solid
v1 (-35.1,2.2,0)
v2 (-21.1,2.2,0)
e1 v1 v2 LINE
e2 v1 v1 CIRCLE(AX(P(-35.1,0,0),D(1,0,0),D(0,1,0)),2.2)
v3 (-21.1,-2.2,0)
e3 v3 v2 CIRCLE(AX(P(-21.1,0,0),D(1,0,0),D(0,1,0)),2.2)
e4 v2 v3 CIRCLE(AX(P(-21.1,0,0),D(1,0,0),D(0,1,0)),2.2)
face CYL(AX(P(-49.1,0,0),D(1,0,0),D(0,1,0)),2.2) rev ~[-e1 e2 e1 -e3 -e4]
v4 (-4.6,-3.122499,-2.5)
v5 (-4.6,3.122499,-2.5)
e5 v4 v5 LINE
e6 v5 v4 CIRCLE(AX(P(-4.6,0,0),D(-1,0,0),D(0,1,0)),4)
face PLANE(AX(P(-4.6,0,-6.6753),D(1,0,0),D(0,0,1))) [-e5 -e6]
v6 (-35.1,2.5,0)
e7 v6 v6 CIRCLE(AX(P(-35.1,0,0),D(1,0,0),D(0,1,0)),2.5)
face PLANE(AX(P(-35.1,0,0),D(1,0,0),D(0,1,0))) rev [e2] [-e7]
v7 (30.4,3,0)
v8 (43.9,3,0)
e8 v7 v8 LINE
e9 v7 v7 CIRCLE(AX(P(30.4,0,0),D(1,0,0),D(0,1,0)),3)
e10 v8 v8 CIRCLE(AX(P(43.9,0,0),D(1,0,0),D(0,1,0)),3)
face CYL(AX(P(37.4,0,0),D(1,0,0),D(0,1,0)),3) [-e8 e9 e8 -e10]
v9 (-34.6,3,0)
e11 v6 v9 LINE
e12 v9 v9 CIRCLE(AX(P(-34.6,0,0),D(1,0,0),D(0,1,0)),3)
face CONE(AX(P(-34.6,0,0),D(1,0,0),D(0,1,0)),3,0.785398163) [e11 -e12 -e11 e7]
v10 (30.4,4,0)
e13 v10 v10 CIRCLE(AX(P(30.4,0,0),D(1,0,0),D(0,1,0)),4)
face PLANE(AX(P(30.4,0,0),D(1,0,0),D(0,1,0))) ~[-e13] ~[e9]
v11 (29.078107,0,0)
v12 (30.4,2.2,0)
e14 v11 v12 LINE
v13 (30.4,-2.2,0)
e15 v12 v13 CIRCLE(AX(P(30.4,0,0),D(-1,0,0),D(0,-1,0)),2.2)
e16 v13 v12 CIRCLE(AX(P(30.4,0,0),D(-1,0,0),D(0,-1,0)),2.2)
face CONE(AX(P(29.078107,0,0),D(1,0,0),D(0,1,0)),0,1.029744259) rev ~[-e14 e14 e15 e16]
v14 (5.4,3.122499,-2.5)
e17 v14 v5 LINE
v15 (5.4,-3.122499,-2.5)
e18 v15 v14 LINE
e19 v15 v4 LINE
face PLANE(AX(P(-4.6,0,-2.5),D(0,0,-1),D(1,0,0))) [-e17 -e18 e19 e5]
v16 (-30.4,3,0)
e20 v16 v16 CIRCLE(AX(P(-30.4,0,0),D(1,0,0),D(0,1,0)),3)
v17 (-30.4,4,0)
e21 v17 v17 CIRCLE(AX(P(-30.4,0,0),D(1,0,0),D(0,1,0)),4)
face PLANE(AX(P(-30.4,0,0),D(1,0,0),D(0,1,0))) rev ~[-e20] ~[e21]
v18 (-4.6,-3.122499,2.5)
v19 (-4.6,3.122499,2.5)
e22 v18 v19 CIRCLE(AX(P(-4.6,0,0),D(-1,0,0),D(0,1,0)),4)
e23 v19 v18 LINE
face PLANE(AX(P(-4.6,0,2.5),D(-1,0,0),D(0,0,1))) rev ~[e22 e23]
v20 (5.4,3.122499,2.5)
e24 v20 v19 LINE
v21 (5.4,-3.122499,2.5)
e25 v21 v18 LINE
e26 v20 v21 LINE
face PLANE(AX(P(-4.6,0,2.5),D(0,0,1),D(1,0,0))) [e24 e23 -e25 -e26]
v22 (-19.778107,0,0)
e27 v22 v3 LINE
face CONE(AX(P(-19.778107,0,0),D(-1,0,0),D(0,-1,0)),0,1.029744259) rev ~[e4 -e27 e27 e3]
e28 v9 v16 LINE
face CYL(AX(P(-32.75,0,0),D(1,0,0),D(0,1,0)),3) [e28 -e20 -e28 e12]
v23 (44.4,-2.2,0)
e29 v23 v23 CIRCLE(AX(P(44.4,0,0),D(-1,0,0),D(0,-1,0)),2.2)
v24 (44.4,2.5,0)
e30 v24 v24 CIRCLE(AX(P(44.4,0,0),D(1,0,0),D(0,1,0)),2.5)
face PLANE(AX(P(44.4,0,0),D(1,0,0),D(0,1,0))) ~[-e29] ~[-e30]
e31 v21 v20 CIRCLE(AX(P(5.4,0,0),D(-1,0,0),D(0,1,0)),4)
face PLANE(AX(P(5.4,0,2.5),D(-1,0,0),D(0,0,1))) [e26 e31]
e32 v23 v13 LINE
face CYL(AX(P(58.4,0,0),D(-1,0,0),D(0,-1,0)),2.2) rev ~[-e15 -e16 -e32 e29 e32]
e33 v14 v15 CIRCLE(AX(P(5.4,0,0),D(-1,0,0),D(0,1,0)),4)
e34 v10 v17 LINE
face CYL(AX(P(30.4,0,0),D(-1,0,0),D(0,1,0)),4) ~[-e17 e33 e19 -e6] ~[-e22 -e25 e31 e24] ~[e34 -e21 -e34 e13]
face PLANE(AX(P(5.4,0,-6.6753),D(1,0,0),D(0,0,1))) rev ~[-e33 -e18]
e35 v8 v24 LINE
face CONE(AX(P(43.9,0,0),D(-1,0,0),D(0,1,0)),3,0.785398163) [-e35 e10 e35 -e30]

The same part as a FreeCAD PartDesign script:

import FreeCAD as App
import Part
import Sketcher
Q = App.Units.Quantity


def edges_at(feature, points):
    """Names of the edges that pass closest to the given points."""
    edges = feature.Shape.Edges
    near = lambda p: min(range(len(edges)), key=lambda i: edges[i].distToShape(Part.Vertex(*p))[0])
    return sorted({f"Edge{near(p) + 1}" for p in points})

doc = App.newDocument("Part")
params = doc.addObject("Spreadsheet::Sheet", "Params")
for row, (alias, value) in enumerate([
    ("sketch1_width", "14 mm"),
    ("sketch1_height", "3 mm"),
    ("sketch1_height2", "1 mm"),
    ("sketch1_width2", "79.5 mm"),
    ("sketch1_width3", "60.8 mm"),
    ("revolution_angle", "360 deg"),
    ("sketch2_width", "10 mm"),
    ("pocket1_length", "25 mm"),
    ("sketch3_diameter", "4.4 mm"),
    ("hole_diameter", "4.4 mm"),
    ("hole_depth", "14 mm"),
    ("sketch4_diameter", "4.4 mm"),
    ("hole2_diameter", "4.4 mm"),
    ("hole2_depth", "14 mm"),
    ("chamfer_size", "0.5 mm"),
], start=1):
    params.set(f"A{row}", alias)
    params.set(f"B{row}", "=" + value)
    params.setAlias(f"B{row}", alias)

body = doc.addObject("PartDesign::Body", "Body")

# Sketch on XY plane
sketch1 = body.newObject("Sketcher::SketchObject", "Sketch")
sketch1.AttachmentSupport = (doc.getObject("XY_Plane"), [""])
sketch1.MapMode = "FlatFace"
sketch1.addGeometry(Part.LineSegment(App.Vector(-35.1, 3, 0), App.Vector(-35.1, 0, 0)), False)
sketch1.addGeometry(Part.LineSegment(App.Vector(-35.1, 0, 0), App.Vector(44.4, 0, 0)), False)
sketch1.addGeometry(Part.LineSegment(App.Vector(44.4, 0, 0), App.Vector(44.4, 3, 0)), False)
sketch1.addGeometry(Part.LineSegment(App.Vector(44.4, 3, 0), App.Vector(30.4, 3, 0)), False)
sketch1.addGeometry(Part.LineSegment(App.Vector(30.4, 3, 0), App.Vector(30.4, 4, 0)), False)
sketch1.addGeometry(Part.LineSegment(App.Vector(30.4, 4, 0), App.Vector(-30.4, 4, 0)), False)
sketch1.addGeometry(Part.LineSegment(App.Vector(-30.4, 4, 0), App.Vector(-30.4, 3, 0)), False)
sketch1.addGeometry(Part.LineSegment(App.Vector(-30.4, 3, 0), App.Vector(-35.1, 3, 0)), False)
sketch1.addConstraint(Sketcher.Constraint("Coincident", 0, 2, 1, 1))
sketch1.addConstraint(Sketcher.Constraint("Coincident", 1, 2, 2, 1))
sketch1.addConstraint(Sketcher.Constraint("Coincident", 2, 2, 3, 1))
sketch1.addConstraint(Sketcher.Constraint("Coincident", 3, 2, 4, 1))
sketch1.addConstraint(Sketcher.Constraint("Coincident", 4, 2, 5, 1))
sketch1.addConstraint(Sketcher.Constraint("Coincident", 5, 2, 6, 1))
sketch1.addConstraint(Sketcher.Constraint("Coincident", 6, 2, 7, 1))
sketch1.addConstraint(Sketcher.Constraint("Coincident", 7, 2, 0, 1))
sketch1.addConstraint(Sketcher.Constraint("Vertical", 0))
sketch1.addConstraint(Sketcher.Constraint("Horizontal", 1))
sketch1.addConstraint(Sketcher.Constraint("Vertical", 2))
sketch1.addConstraint(Sketcher.Constraint("Horizontal", 3))
sketch1.addConstraint(Sketcher.Constraint("Vertical", 4))
sketch1.addConstraint(Sketcher.Constraint("Horizontal", 5))
sketch1.addConstraint(Sketcher.Constraint("Vertical", 6))
sketch1.addConstraint(Sketcher.Constraint("Horizontal", 7))
sketch1.addConstraint(Sketcher.Constraint("Symmetric", 3, 2, 6, 2, -2))
sketch1.addConstraint(Sketcher.Constraint("PointOnObject", 0, 2, -1))
sketch1.addConstraint(Sketcher.Constraint("DistanceX", 3, 2, 3, 1, Q("14 mm")))
sketch1.addConstraint(Sketcher.Constraint("DistanceY", 0, 2, 0, 1, Q("3 mm")))
sketch1.addConstraint(Sketcher.Constraint("DistanceY", 4, 1, 4, 2, Q("1 mm")))
sketch1.addConstraint(Sketcher.Constraint("DistanceX", 1, 1, 1, 2, Q("79.5 mm")))
sketch1.addConstraint(Sketcher.Constraint("DistanceX", 5, 2, 5, 1, Q("60.8 mm")))
sketch1.setExpression("Constraints[18]", "Params.sketch1_width")
sketch1.setExpression("Constraints[19]", "Params.sketch1_height")
sketch1.setExpression("Constraints[20]", "Params.sketch1_height2")
sketch1.setExpression("Constraints[21]", "Params.sketch1_width2")
sketch1.setExpression("Constraints[22]", "Params.sketch1_width3")
revolution = body.newObject("PartDesign::Revolution", "Revolution")
revolution.Profile = sketch1
revolution.ReferenceAxis = (sketch1, ["H_Axis"])
revolution.setExpression("Angle", "Params.revolution_angle")

# Sketch on XZ plane
sketch2 = body.newObject("Sketcher::SketchObject", "Sketch001")
sketch2.AttachmentSupport = (doc.getObject("XZ_Plane"), [""])
sketch2.MapMode = "FlatFace"
sketch2.addGeometry(Part.LineSegment(App.Vector(-4.6, 6.6753, 0), App.Vector(-4.6, 2.5, 0)), False)
sketch2.addGeometry(Part.LineSegment(App.Vector(-4.6, 2.5, 0), App.Vector(5.4, 2.5, 0)), False)
sketch2.addGeometry(Part.LineSegment(App.Vector(5.4, 2.5, 0), App.Vector(5.4, 6.6753, 0)), False)
sketch2.addGeometry(Part.LineSegment(App.Vector(5.4, 6.6753, 0), App.Vector(-4.6, 6.6753, 0)), False)
sketch2.addGeometry(Part.LineSegment(App.Vector(-4.6, -2.5, 0), App.Vector(-4.6, -6.6753, 0)), False)
sketch2.addGeometry(Part.LineSegment(App.Vector(-4.6, -6.6753, 0), App.Vector(5.4, -6.6753, 0)), False)
sketch2.addGeometry(Part.LineSegment(App.Vector(5.4, -6.6753, 0), App.Vector(5.4, -2.5, 0)), False)
sketch2.addGeometry(Part.LineSegment(App.Vector(5.4, -2.5, 0), App.Vector(-4.6, -2.5, 0)), False)
sketch2.addConstraint(Sketcher.Constraint("Coincident", 0, 2, 1, 1))
sketch2.addConstraint(Sketcher.Constraint("Coincident", 1, 2, 2, 1))
sketch2.addConstraint(Sketcher.Constraint("Coincident", 2, 2, 3, 1))
sketch2.addConstraint(Sketcher.Constraint("Coincident", 3, 2, 0, 1))
sketch2.addConstraint(Sketcher.Constraint("Coincident", 4, 2, 5, 1))
sketch2.addConstraint(Sketcher.Constraint("Coincident", 5, 2, 6, 1))
sketch2.addConstraint(Sketcher.Constraint("Coincident", 6, 2, 7, 1))
sketch2.addConstraint(Sketcher.Constraint("Coincident", 7, 2, 4, 1))
sketch2.addConstraint(Sketcher.Constraint("Vertical", 0))
sketch2.addConstraint(Sketcher.Constraint("Horizontal", 1))
sketch2.addConstraint(Sketcher.Constraint("Vertical", 2))
sketch2.addConstraint(Sketcher.Constraint("Horizontal", 3))
sketch2.addConstraint(Sketcher.Constraint("Vertical", 4))
sketch2.addConstraint(Sketcher.Constraint("Horizontal", 5))
sketch2.addConstraint(Sketcher.Constraint("Vertical", 6))
sketch2.addConstraint(Sketcher.Constraint("Horizontal", 7))
sketch2.addConstraint(Sketcher.Constraint("Symmetric", 3, 2, 4, 2, -1))
sketch2.addConstraint(Sketcher.Constraint("Symmetric", 1, 2, 6, 2, -1))
sketch2.addConstraint(Sketcher.Constraint("DistanceX", 1, 1, 1, 2, Q("10 mm")))
sketch2.addConstraint(Sketcher.Constraint("DistanceY", 6, 2, 1, 2, Q("5 mm")))
sketch2.addConstraint(Sketcher.Constraint("DistanceX", 0, 2, -1, 1, Q("4.6 mm")))
sketch2.addConstraint(Sketcher.Constraint("DistanceY", 0, 2, 0, 1, Q("4.1753 mm")))
sketch2.setExpression("Constraints[18]", "Params.sketch2_width")
pocket1 = body.newObject("PartDesign::Pocket", "Pocket")
pocket1.Profile = sketch2
pocket1.setExpression("Length", "Params.pocket1_length")
pocket1.Midplane = True

# Sketch on YZ plane
sketch3 = body.newObject("Sketcher::SketchObject", "Sketch002")
sketch3.AttachmentSupport = (doc.getObject("YZ_Plane"), [""])
sketch3.MapMode = "FlatFace"
sketch3.AttachmentOffset = App.Placement(App.Vector(0, 0, 44.4), App.Rotation())
sketch3.addGeometry(Part.Circle(App.Vector(0, 0, 0), App.Vector(0, 0, 1), 2.2), False)
sketch3.addConstraint(Sketcher.Constraint("Coincident", 0, 3, -1, 1))
sketch3.addConstraint(Sketcher.Constraint("Diameter", 0, Q("4.4 mm")))
sketch3.setExpression("Constraints[1]", "Params.sketch3_diameter")
doc.recompute()
hole = body.newObject("PartDesign::Hole", "Hole")
hole.Profile = sketch3
hole.ThreadType = "None"
hole.setExpression("Diameter", "Params.hole_diameter")
hole.DepthType = "Dimension"
hole.setExpression("Depth", "Params.hole_depth")
hole.DrillPoint = "Angled"
hole.DrillPointAngle = 118

# Sketch on YZ plane
sketch4 = body.newObject("Sketcher::SketchObject", "Sketch003")
sketch4.AttachmentSupport = (doc.getObject("YZ_Plane"), [""])
sketch4.MapMode = "FlatFace"
sketch4.AttachmentOffset = App.Placement(App.Vector(0, 0, -35.1), App.Rotation())
sketch4.addGeometry(Part.Circle(App.Vector(0, 0, 0), App.Vector(0, 0, 1), 2.2), False)
sketch4.addConstraint(Sketcher.Constraint("Coincident", 0, 3, -1, 1))
sketch4.addConstraint(Sketcher.Constraint("Diameter", 0, Q("4.4 mm")))
sketch4.setExpression("Constraints[1]", "Params.sketch4_diameter")
doc.recompute()
hole2 = body.newObject("PartDesign::Hole", "Hole001")
hole2.Profile = sketch4
hole2.ThreadType = "None"
hole2.setExpression("Diameter", "Params.hole2_diameter")
hole2.DepthType = "Dimension"
hole2.setExpression("Depth", "Params.hole2_depth")
hole2.DrillPoint = "Angled"
hole2.DrillPointAngle = 118
hole2.Reversed = True
doc.recompute()

chamfer = body.newObject("PartDesign::Chamfer", "Chamfer")
chamfer.Base = (hole2, edges_at(hole2, [(-35.1, -3, 0), (44.4, -3, 0)]))
chamfer.setExpression("Size", "Params.chamfer_size")

doc.recompute()
